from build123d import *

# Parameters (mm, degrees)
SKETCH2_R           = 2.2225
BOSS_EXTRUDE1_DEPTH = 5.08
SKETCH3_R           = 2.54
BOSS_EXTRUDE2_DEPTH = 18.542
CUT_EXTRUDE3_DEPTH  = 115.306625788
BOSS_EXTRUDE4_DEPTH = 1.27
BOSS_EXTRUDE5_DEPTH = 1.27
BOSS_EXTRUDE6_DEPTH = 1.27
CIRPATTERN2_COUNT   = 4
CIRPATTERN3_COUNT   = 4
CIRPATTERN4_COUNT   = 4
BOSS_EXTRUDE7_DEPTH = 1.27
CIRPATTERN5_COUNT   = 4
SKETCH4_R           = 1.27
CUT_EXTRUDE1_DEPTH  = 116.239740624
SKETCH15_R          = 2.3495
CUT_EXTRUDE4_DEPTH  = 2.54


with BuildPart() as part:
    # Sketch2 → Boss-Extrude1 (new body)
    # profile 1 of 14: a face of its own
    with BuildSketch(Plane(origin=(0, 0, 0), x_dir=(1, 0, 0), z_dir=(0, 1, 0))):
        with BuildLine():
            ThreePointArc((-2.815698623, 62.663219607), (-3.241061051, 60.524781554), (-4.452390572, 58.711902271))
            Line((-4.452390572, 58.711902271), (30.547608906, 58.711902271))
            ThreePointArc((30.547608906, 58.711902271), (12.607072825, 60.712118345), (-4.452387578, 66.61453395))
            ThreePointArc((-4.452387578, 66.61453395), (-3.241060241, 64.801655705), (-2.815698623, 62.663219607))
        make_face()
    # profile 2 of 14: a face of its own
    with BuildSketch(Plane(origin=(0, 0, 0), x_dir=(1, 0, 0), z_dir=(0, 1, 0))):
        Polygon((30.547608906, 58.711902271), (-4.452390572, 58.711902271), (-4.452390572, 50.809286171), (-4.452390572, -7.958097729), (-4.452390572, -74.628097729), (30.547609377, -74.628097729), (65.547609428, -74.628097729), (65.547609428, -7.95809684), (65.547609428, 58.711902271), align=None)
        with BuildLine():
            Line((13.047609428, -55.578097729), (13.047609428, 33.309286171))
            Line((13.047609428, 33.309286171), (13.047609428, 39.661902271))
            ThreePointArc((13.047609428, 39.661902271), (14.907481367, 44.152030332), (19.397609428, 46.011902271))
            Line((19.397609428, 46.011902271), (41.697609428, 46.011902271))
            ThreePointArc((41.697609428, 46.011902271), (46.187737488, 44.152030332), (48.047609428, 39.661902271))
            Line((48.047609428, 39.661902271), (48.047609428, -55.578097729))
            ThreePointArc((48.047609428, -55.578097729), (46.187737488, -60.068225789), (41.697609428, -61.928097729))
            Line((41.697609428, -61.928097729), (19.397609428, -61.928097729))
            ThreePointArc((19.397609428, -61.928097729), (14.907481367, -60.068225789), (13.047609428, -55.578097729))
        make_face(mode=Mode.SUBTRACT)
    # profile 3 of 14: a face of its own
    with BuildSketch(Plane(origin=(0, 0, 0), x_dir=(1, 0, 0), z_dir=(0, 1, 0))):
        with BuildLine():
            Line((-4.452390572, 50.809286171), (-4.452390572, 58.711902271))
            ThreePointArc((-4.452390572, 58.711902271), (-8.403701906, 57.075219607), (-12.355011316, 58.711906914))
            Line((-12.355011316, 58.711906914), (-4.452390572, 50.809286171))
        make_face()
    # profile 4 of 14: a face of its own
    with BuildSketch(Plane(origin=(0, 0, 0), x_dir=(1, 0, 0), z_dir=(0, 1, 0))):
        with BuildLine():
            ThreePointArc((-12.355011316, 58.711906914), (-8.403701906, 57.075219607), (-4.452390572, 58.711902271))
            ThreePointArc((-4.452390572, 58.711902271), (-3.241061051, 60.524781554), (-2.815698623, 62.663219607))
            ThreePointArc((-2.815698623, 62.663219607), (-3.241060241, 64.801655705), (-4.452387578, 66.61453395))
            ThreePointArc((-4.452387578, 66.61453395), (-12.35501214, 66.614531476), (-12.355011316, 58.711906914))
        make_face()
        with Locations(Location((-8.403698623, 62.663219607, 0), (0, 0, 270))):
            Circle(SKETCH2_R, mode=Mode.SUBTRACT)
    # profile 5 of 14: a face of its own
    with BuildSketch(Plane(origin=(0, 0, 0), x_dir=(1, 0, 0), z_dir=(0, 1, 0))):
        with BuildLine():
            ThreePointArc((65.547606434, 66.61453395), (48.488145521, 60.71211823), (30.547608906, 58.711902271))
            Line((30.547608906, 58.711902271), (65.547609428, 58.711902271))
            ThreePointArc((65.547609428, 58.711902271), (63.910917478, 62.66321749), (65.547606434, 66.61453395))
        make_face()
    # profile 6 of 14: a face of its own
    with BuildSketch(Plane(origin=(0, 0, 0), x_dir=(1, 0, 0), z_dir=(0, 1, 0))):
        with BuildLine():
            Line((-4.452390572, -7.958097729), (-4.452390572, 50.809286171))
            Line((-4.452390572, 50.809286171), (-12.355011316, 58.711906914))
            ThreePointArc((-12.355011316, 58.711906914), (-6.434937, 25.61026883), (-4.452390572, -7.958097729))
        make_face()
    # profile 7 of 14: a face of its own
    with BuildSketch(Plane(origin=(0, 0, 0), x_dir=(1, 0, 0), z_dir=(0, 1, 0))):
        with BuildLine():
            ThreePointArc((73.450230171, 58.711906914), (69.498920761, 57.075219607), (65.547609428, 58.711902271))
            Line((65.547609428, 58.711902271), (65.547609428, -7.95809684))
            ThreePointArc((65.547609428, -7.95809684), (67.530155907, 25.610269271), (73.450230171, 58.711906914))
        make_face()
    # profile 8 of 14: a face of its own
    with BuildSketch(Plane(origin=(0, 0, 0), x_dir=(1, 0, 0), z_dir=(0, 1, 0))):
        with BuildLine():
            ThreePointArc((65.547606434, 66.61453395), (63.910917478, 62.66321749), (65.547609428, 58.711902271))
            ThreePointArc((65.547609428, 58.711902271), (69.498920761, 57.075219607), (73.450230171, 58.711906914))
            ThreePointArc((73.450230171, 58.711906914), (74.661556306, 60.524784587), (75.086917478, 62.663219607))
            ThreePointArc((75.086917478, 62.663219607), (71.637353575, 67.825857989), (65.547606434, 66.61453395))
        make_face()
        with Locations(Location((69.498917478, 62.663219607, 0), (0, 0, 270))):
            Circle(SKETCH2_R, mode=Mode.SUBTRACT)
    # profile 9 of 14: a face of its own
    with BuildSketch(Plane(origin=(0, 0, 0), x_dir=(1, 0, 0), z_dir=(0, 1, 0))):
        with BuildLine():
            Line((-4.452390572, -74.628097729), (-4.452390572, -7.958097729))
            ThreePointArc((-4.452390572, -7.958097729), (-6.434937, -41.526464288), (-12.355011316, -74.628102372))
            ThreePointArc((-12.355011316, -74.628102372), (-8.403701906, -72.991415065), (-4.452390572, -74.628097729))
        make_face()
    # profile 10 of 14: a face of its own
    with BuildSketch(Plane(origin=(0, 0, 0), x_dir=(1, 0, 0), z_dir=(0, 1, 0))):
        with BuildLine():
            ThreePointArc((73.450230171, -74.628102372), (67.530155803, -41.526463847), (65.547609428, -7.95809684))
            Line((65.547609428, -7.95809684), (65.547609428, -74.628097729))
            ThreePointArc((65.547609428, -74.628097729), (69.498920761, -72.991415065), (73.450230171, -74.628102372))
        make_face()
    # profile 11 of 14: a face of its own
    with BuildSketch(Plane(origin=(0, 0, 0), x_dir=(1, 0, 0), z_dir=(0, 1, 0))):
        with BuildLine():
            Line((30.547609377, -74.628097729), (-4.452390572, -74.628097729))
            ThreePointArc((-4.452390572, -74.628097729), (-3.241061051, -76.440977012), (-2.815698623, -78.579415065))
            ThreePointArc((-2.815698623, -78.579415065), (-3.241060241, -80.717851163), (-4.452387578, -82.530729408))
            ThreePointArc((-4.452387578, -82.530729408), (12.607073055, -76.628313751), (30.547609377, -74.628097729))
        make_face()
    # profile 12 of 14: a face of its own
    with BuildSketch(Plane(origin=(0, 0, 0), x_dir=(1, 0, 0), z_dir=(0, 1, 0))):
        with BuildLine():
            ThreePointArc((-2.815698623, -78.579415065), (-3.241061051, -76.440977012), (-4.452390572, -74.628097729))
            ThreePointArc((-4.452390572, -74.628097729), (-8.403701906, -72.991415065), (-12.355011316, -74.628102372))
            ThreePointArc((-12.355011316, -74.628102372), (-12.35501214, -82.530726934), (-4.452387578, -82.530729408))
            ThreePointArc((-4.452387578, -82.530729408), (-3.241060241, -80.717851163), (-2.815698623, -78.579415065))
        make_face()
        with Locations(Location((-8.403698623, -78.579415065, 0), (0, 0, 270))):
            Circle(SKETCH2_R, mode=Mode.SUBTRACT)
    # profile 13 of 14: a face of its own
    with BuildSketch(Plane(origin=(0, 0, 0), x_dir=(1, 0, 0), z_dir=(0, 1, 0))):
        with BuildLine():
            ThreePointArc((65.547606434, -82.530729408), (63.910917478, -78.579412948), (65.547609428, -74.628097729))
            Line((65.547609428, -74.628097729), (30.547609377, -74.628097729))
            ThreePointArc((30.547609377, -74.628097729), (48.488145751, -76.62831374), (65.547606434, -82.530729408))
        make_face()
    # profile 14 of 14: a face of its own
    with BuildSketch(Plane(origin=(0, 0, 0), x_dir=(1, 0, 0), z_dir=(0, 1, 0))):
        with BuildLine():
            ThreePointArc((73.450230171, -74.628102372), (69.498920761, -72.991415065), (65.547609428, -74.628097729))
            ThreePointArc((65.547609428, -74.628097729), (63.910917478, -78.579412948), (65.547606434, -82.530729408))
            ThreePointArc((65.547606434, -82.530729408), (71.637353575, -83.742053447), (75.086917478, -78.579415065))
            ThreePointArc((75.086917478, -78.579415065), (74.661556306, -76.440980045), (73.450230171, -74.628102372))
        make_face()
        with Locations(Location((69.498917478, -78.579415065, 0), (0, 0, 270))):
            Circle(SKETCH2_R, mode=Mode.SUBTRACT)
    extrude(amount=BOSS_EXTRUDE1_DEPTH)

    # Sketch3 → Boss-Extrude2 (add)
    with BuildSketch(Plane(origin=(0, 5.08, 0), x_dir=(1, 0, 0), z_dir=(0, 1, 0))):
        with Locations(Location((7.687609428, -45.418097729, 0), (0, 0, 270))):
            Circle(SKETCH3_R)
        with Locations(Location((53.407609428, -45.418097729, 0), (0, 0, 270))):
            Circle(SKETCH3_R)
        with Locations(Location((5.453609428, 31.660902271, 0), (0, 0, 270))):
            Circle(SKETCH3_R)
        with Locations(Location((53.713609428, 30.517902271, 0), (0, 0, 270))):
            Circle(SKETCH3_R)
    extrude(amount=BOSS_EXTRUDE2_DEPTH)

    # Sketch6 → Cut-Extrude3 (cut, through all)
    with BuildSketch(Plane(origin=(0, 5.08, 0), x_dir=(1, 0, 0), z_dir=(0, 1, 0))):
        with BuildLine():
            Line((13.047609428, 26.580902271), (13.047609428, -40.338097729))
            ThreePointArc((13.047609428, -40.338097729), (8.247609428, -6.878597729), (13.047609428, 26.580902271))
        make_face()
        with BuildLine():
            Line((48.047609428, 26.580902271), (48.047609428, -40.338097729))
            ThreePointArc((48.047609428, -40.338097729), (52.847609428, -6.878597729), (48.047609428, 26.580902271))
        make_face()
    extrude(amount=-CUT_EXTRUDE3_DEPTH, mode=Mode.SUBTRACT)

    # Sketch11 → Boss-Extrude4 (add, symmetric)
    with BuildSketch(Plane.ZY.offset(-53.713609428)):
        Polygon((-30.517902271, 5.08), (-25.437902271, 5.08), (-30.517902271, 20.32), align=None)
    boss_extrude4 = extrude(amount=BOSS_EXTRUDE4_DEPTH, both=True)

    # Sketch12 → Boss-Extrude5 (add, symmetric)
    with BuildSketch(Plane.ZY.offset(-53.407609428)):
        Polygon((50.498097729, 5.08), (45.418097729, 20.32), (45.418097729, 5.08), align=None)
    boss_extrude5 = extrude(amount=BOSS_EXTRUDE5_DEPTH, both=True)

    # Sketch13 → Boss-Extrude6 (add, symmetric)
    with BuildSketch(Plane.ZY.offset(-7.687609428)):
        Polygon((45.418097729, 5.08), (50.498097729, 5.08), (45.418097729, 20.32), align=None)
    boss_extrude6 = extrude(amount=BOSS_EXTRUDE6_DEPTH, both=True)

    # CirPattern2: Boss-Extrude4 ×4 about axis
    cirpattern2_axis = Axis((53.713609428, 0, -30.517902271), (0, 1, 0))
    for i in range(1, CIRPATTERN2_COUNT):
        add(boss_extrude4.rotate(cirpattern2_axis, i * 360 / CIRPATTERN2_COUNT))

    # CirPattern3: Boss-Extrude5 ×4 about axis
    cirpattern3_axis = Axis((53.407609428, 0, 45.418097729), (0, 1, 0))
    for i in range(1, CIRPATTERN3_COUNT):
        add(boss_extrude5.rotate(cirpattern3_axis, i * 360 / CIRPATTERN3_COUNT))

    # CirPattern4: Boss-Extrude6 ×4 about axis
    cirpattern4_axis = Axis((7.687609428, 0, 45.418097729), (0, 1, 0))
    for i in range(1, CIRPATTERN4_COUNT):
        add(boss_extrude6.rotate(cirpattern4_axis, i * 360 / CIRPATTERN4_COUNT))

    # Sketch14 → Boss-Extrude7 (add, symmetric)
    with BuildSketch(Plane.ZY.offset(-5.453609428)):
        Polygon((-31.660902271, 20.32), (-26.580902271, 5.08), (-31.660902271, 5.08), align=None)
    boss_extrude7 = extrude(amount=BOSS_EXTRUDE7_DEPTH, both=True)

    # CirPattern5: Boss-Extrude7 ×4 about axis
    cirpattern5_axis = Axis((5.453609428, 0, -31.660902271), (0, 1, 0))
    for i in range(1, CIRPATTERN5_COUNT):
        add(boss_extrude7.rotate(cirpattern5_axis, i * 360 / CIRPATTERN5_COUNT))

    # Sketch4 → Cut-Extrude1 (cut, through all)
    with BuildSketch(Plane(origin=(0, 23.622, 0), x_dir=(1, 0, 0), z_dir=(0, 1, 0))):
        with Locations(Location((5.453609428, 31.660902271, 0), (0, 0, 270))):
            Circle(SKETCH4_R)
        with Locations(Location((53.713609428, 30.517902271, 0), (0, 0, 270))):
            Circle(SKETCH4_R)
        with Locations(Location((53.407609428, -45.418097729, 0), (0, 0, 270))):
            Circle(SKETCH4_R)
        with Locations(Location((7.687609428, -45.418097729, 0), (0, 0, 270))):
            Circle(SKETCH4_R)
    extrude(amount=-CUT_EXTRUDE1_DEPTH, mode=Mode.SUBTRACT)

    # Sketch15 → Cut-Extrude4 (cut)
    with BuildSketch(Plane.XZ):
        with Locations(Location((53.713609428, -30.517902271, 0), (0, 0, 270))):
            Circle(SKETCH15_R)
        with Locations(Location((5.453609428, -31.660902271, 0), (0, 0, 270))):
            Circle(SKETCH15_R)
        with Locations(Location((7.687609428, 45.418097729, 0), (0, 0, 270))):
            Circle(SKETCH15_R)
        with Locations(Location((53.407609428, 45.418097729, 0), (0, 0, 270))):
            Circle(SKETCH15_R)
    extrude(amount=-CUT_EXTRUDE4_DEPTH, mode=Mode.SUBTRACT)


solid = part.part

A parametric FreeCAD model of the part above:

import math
import FreeCAD as App
import Part
import Sketcher
from FreeCAD import Vector
Q = App.Units.Quantity


def add_polygon(sketch, points):
    """Adds a closed chain of lines whose ends are joined by coincident constraints."""
    first, n = sketch.GeometryCount, len(points)
    for a, b in zip(points, points[1:] + points[:1]):
        sketch.addGeometry(Part.LineSegment(App.Vector(*a, 0), App.Vector(*b, 0)), False)
    for i in range(n):
        sketch.addConstraint(Sketcher.Constraint("Coincident", first + i, 2, first + (i + 1) % n, 1))

doc = App.newDocument("Part")
body = doc.addObject("PartDesign::Body", "Body")

# Sketch on XZ plane
sketch1 = doc.addObject("Sketcher::SketchObject", "Sketch")
body.addObject(sketch1)
sketch1.AttachmentSupport = (doc.XZ_Plane, [""])
sketch1.MapMode = "FlatFace"
sketch1.addGeometry(Part.ArcOfCircle(Part.Circle(Vector(30.5, -140.2, 0), Vector(0, 0, 1), 81.5), math.radians(90), math.radians(115)), False)
sketch1.addGeometry(Part.ArcOfCircle(Part.Circle(Vector(-8.4, -62.7, 0), Vector(0, 0, 1), 5.6), math.radians(135), math.radians(315)), False)
sketch1.addGeometry(Part.ArcOfCircle(Part.Circle(Vector(-289.6, 8, 0), Vector(0, 0, 1), 285.2), math.radians(-13.52), math.radians(0)), False)
sketch1.addGeometry(Part.ArcOfCircle(Part.Circle(Vector(-289.6, 8, 0), Vector(0, 0, 1), 285.2), math.radians(0), math.radians(13.52)), False)
sketch1.addGeometry(Part.ArcOfCircle(Part.Circle(Vector(-8.4, 78.6, 0), Vector(0, 0, 1), 5.6), math.radians(45), math.radians(225)), False)
sketch1.addGeometry(Part.ArcOfCircle(Part.Circle(Vector(30.5, 156.1, 0), Vector(0, 0, 1), 81.5), math.radians(-115), math.radians(-90)), False)
sketch1.addGeometry(Part.ArcOfCircle(Part.Circle(Vector(30.5, 156.1, 0), Vector(0, 0, 1), 81.5), math.radians(-90), math.radians(-65)), False)
sketch1.addGeometry(Part.ArcOfCircle(Part.Circle(Vector(69.5, 78.6, 0), Vector(0, 0, 1), 5.6), math.radians(0), math.radians(135)), False)
sketch1.addGeometry(Part.ArcOfCircle(Part.Circle(Vector(69.5, 78.6, 0), Vector(0, 0, 1), 5.6), math.radians(-45), math.radians(0)), False)
sketch1.addGeometry(Part.ArcOfCircle(Part.Circle(Vector(350.7, 8, 0), Vector(0, 0, 1), 285.2), math.radians(166.48), math.radians(180)), False)
sketch1.addGeometry(Part.ArcOfCircle(Part.Circle(Vector(350.7, 8, 0), Vector(0, 0, 1), 285.2), math.radians(-180), math.radians(-166.48)), False)
sketch1.addGeometry(Part.ArcOfCircle(Part.Circle(Vector(69.5, -62.7, 0), Vector(0, 0, 1), 5.6), math.radians(0), math.radians(45)), False)
sketch1.addGeometry(Part.ArcOfCircle(Part.Circle(Vector(69.5, -62.7, 0), Vector(0, 0, 1), 5.6), math.radians(-135), math.radians(0)), False)
sketch1.addGeometry(Part.ArcOfCircle(Part.Circle(Vector(30.5, -140.2, 0), Vector(0, 0, 1), 81.5), math.radians(65), math.radians(90)), False)
sketch1.addGeometry(Part.Circle(Vector(-8.4, -62.7, 0), Vector(0, 0, 1), 2.2), False)
sketch1.addGeometry(Part.LineSegment(Vector(13, 55.6, 0), Vector(13, -39.7, 0)), False)
sketch1.addGeometry(Part.ArcOfCircle(Part.Circle(Vector(19.4, -39.7, 0), Vector(0, 0, 1), 6.3), math.radians(180), math.radians(270)), False)
sketch1.addGeometry(Part.LineSegment(Vector(19.4, -46, 0), Vector(41.7, -46, 0)), False)
sketch1.addGeometry(Part.ArcOfCircle(Part.Circle(Vector(41.7, -39.7, 0), Vector(0, 0, 1), 6.3), math.radians(-90), math.radians(0)), False)
sketch1.addGeometry(Part.LineSegment(Vector(48, -39.7, 0), Vector(48, 55.6, 0)), False)
sketch1.addGeometry(Part.ArcOfCircle(Part.Circle(Vector(41.7, 55.6, 0), Vector(0, 0, 1), 6.4), math.radians(0), math.radians(90)), False)
sketch1.addGeometry(Part.LineSegment(Vector(41.7, 61.9, 0), Vector(19.4, 61.9, 0)), False)
sketch1.addGeometry(Part.ArcOfCircle(Part.Circle(Vector(19.4, 55.6, 0), Vector(0, 0, 1), 6.3), math.radians(90), math.radians(180)), False)
sketch1.addGeometry(Part.Circle(Vector(-8.4, 78.6, 0), Vector(0, 0, 1), 2.2), False)
sketch1.addGeometry(Part.Circle(Vector(69.5, -62.7, 0), Vector(0, 0, 1), 2.2), False)
sketch1.addGeometry(Part.Circle(Vector(69.5, 78.6, 0), Vector(0, 0, 1), 2.2), False)
sketch1.addConstraint(Sketcher.Constraint("Coincident", 0, 2, 1, 2))
sketch1.addConstraint(Sketcher.Constraint("Coincident", 1, 1, 2, 1))
sketch1.addConstraint(Sketcher.Constraint("Tangent", 2, 2, 3, 1))
sketch1.addConstraint(Sketcher.Constraint("Coincident", 3, 2, 4, 2))
sketch1.addConstraint(Sketcher.Constraint("Coincident", 4, 1, 5, 1))
sketch1.addConstraint(Sketcher.Constraint("Tangent", 5, 2, 6, 1))
sketch1.addConstraint(Sketcher.Constraint("Coincident", 6, 2, 7, 2))
sketch1.addConstraint(Sketcher.Constraint("Tangent", 7, 1, 8, 2))
sketch1.addConstraint(Sketcher.Constraint("Coincident", 8, 1, 9, 1))
sketch1.addConstraint(Sketcher.Constraint("Tangent", 9, 2, 10, 1))
sketch1.addConstraint(Sketcher.Constraint("Coincident", 10, 2, 11, 2))
sketch1.addConstraint(Sketcher.Constraint("Tangent", 11, 1, 12, 2))
sketch1.addConstraint(Sketcher.Constraint("Coincident", 12, 1, 13, 1))
sketch1.addConstraint(Sketcher.Constraint("Tangent", 13, 2, 0, 1))
sketch1.addConstraint(Sketcher.Constraint("Tangent", 15, 2, 16, 1))
sketch1.addConstraint(Sketcher.Constraint("Tangent", 16, 2, 17, 1))
sketch1.addConstraint(Sketcher.Constraint("Tangent", 17, 2, 18, 1))
sketch1.addConstraint(Sketcher.Constraint("Tangent", 18, 2, 19, 1))
sketch1.addConstraint(Sketcher.Constraint("Tangent", 19, 2, 20, 1))
sketch1.addConstraint(Sketcher.Constraint("Tangent", 20, 2, 21, 1))
sketch1.addConstraint(Sketcher.Constraint("Tangent", 21, 2, 22, 1))
sketch1.addConstraint(Sketcher.Constraint("Tangent", 22, 2, 15, 1))
sketch1.addConstraint(Sketcher.Constraint("Vertical", 15))
sketch1.addConstraint(Sketcher.Constraint("Horizontal", 17))
sketch1.addConstraint(Sketcher.Constraint("Vertical", 19))
sketch1.addConstraint(Sketcher.Constraint("Horizontal", 21))
sketch1.addConstraint(Sketcher.Constraint("Coincident", 14, 3, 1, 3))
sketch1.addConstraint(Sketcher.Constraint("Coincident", 23, 3, 4, 3))
sketch1.addConstraint(Sketcher.Constraint("Coincident", 24, 3, 11, 3))
sketch1.addConstraint(Sketcher.Constraint("Coincident", 25, 3, 7, 3))
sketch1.addConstraint(Sketcher.Constraint("Equal", 2, 3))
sketch1.addConstraint(Sketcher.Constraint("Equal", 1, 4))
sketch1.addConstraint(Sketcher.Constraint("Equal", 0, 5))
sketch1.addConstraint(Sketcher.Constraint("Equal", 5, 6))
sketch1.addConstraint(Sketcher.Constraint("Equal", 4, 7))
sketch1.addConstraint(Sketcher.Constraint("Equal", 7, 8))
sketch1.addConstraint(Sketcher.Constraint("Equal", 3, 9))
sketch1.addConstraint(Sketcher.Constraint("Equal", 9, 10))
sketch1.addConstraint(Sketcher.Constraint("Equal", 8, 11))
sketch1.addConstraint(Sketcher.Constraint("Equal", 11, 12))
sketch1.addConstraint(Sketcher.Constraint("Equal", 6, 13))
sketch1.addConstraint(Sketcher.Constraint("Equal", 16, 18))
sketch1.addConstraint(Sketcher.Constraint("Equal", 18, 20))
sketch1.addConstraint(Sketcher.Constraint("Equal", 20, 22))
sketch1.addConstraint(Sketcher.Constraint("Equal", 14, 23))
sketch1.addConstraint(Sketcher.Constraint("Equal", 23, 24))
sketch1.addConstraint(Sketcher.Constraint("Equal", 24, 25))
sketch1.addConstraint(Sketcher.Constraint("Horizontal", 4, 3, 7, 3))
sketch1.addConstraint(Sketcher.Constraint("Horizontal", 3, 3, 9, 3))
sketch1.addConstraint(Sketcher.Constraint("Horizontal", 1, 3, 11, 3))
sketch1.addConstraint(Sketcher.Constraint("Horizontal", 10, 3, 2, 2))
sketch1.addConstraint(Sketcher.Constraint("Horizontal", 4, 1, 6, 2))
sketch1.addConstraint(Sketcher.Constraint("Horizontal", 25, 3, 7, 1))
sketch1.addConstraint(Sketcher.Constraint("Horizontal", 3, 2, 8, 1))
sketch1.addConstraint(Sketcher.Constraint("Horizontal", 2, 2, 9, 2))
sketch1.addConstraint(Sketcher.Constraint("Horizontal", 1, 1, 10, 2))
sketch1.addConstraint(Sketcher.Constraint("Horizontal", 24, 3, 11, 1))
sketch1.addConstraint(Sketcher.Constraint("Horizontal", 0, 2, 12, 1))
sketch1.addConstraint(Sketcher.Constraint("Vertical", 1, 3, 4, 3))
sketch1.addConstraint(Sketcher.Constraint("Vertical", 1, 1, 3, 2))
sketch1.addConstraint(Sketcher.Constraint("Vertical", 0, 2, 4, 1))
sketch1.addConstraint(Sketcher.Constraint("Vertical", 13, 3, 5, 2))
sketch1.addConstraint(Sketcher.Constraint("Vertical", 5, 2, 13, 2))
sketch1.addConstraint(Sketcher.Constraint("Radius", 1, Q("0.22 in")))
sketch1.addConstraint(Sketcher.Constraint("Radius", 16, Q("0.25 in")))
sketch1.addConstraint(Sketcher.Constraint("Diameter", 14, Q("0.175 in")))
sketch1.addConstraint(Sketcher.Constraint("DistanceY", 13, 2, 16, 2, Q("0.5 in")))
sketch1.addConstraint(Sketcher.Constraint("DistanceY", 20, 2, 5, 2, Q("0.5 in")))
sketch1.addConstraint(Sketcher.Constraint("DistanceY", 1, 1, 16, 3, Q("0.7500002 in")))
sketch1.addConstraint(Sketcher.Constraint("Radius", 0, Q("81.457129 mm")))
sketch1.addConstraint(Sketcher.Constraint("DistanceX", 17, 1, 17, 2, Q("22.3 mm")))
sketch1.addConstraint(Sketcher.Constraint("DistanceY", 15, 2, 15, 1, Q("95.24 mm")))
sketch1.addConstraint(Sketcher.Constraint("Radius", 2, Q("285.180137 mm")))
sketch1.addConstraint(Sketcher.Constraint("DistanceX", 1, 3, -1, 1, Q("8.403699 mm")))
sketch1.addConstraint(Sketcher.Constraint("DistanceX", 16, 3, 0, 3, Q("11.15 mm")))
sketch1.addConstraint(Sketcher.Constraint("DistanceX", 2, 2, 22, 3, Q("23.85 mm")))
sketch1.addConstraint(Sketcher.Constraint("DistanceX", -1, 1, 0, 3, Q("30.547609 mm")))
sketch1.addConstraint(Sketcher.Constraint("DistanceY", 0, 3, -1, 1, Q("140.169031 mm")))
pad1 = doc.addObject("PartDesign::Pad", "Pad")
body.addObject(pad1)
pad1.Profile = sketch1
pad1.Length = Q("0.2 in")
pad1.Reversed = True

# Sketch on XZ plane
sketch2 = doc.addObject("Sketcher::SketchObject", "Sketch001")
body.addObject(sketch2)
sketch2.AttachmentSupport = (doc.XZ_Plane, [""])
sketch2.MapMode = "FlatFace"
sketch2.AttachmentOffset = App.Placement(Vector(0, 0, -0.2 * 25.4), App.Rotation())
sketch2.addGeometry(Part.Circle(Vector(7.7, 45.4, 0), Vector(0, 0, 1), 2.5), False)
sketch2.addGeometry(Part.Circle(Vector(53.4, 45.4, 0), Vector(0, 0, 1), 2.5), False)
sketch2.addGeometry(Part.Circle(Vector(5.5, -31.7, 0), Vector(0, 0, 1), 2.5), False)
sketch2.addGeometry(Part.Circle(Vector(53.7, -30.5, 0), Vector(0, 0, 1), 2.5), False)
sketch2.addConstraint(Sketcher.Constraint("Equal", 0, 1))
sketch2.addConstraint(Sketcher.Constraint("Equal", 1, 2))
sketch2.addConstraint(Sketcher.Constraint("Equal", 2, 3))
sketch2.addConstraint(Sketcher.Constraint("Horizontal", 0, 3, 1, 3))
sketch2.addConstraint(Sketcher.Constraint("Diameter", 0, Q("0.2 in")))
sketch2.addConstraint(Sketcher.Constraint("DistanceX", 0, 3, 1, 3, Q("1.8 in")))
sketch2.addConstraint(Sketcher.Constraint("DistanceX", 2, 3, 3, 3, Q("1.9 in")))
sketch2.addConstraint(Sketcher.Constraint("DistanceY", 2, 3, 3, 3, Q("0.045 in")))
sketch2.addConstraint(Sketcher.Constraint("DistanceX", 2, 3, 0, 3, Q("2.234 mm")))
sketch2.addConstraint(Sketcher.Constraint("DistanceY", 2, 3, 0, 3, Q("77.079 mm")))
sketch2.addConstraint(Sketcher.Constraint("DistanceX", -1, 1, 0, 3, Q("7.687609 mm")))
sketch2.addConstraint(Sketcher.Constraint("DistanceY", -1, 1, 0, 3, Q("45.418098 mm")))
pad2 = doc.addObject("PartDesign::Pad", "Pad001")
body.addObject(pad2)
pad2.Profile = sketch2
pad2.Length = Q("0.73 in")
pad2.Reversed = True

# Sketch on XZ plane
sketch3 = doc.addObject("Sketcher::SketchObject", "Sketch002")
body.addObject(sketch3)
sketch3.AttachmentSupport = (doc.XZ_Plane, [""])
sketch3.MapMode = "FlatFace"
sketch3.AttachmentOffset = App.Placement(Vector(0, 0, -0.2 * 25.4), App.Rotation())
sketch3.addGeometry(Part.LineSegment(Vector(13, 40, 0), Vector(13, -27, 0)), False)
sketch3.addGeometry(Part.ArcOfCircle(Part.Circle(Vector(127, 7, 0), Vector(0, 0, 1), 119), math.radians(164), math.radians(196)), False)
sketch3.addGeometry(Part.LineSegment(Vector(48, -27, 0), Vector(48, 40, 0)), False)
sketch3.addGeometry(Part.ArcOfCircle(Part.Circle(Vector(-66, 7, 0), Vector(0, 0, 1), 119), math.radians(-16), math.radians(16)), False)
sketch3.addConstraint(Sketcher.Constraint("Coincident", 0, 1, 1, 1))
sketch3.addConstraint(Sketcher.Constraint("Coincident", 1, 2, 0, 2))
sketch3.addConstraint(Sketcher.Constraint("Coincident", 2, 1, 3, 1))
sketch3.addConstraint(Sketcher.Constraint("Coincident", 3, 2, 2, 2))
sketch3.addConstraint(Sketcher.Constraint("Vertical", 0))
sketch3.addConstraint(Sketcher.Constraint("Vertical", 2))
sketch3.addConstraint(Sketcher.Constraint("Equal", 1, 3))
sketch3.addConstraint(Sketcher.Constraint("Horizontal", 1, 3, 3, 3))
sketch3.addConstraint(Sketcher.Constraint("Horizontal", 1, 2, 2, 1))
sketch3.addConstraint(Sketcher.Constraint("DistanceY", 0, 2, 0, 1, Q("66.919 mm")))
sketch3.addConstraint(Sketcher.Constraint("Radius", 1, Q("119.018556 mm")))
sketch3.addConstraint(Sketcher.Constraint("DistanceX", 1, 2, 2, 1, Q("35 mm")))
sketch3.addConstraint(Sketcher.Constraint("DistanceX", -1, 1, 0, 1, Q("13.047609 mm")))
sketch3.addConstraint(Sketcher.Constraint("DistanceY", -1, 1, 1, 3, Q("6.878598 mm")))
pocket1 = doc.addObject("PartDesign::Pocket", "Pocket")
body.addObject(pocket1)
pocket1.Profile = sketch3
pocket1.Type = "ThroughAll"
pocket1.Reversed = True

# Sketch on YZ plane
sketch4 = doc.addObject("Sketcher::SketchObject", "Sketch003")
body.addObject(sketch4)
sketch4.AttachmentSupport = (doc.YZ_Plane, [""])
sketch4.MapMode = "FlatFace"
sketch4.AttachmentOffset = App.Placement(Vector(0, 0, 53.713609), App.Rotation())
add_polygon(sketch4, [(5, -31), (5, -25), (20, -31)])  # lines 0-2
sketch4.addConstraint(Sketcher.Constraint("Vertical", 0))
sketch4.addConstraint(Sketcher.Constraint("Horizontal", 2))
sketch4.addConstraint(Sketcher.Constraint("DistanceX", 2, 2, 2, 1, Q("0.6 in")))
sketch4.addConstraint(Sketcher.Constraint("DistanceY", 0, 1, 0, 2, Q("0.2 in")))
sketch4.addConstraint(Sketcher.Constraint("DistanceX", -1, 1, 0, 2, Q("0.2 in")))
sketch4.addConstraint(Sketcher.Constraint("DistanceY", 0, 2, -1, 1, Q("25.437902 mm")))
pad3 = doc.addObject("PartDesign::Pad", "Pad002")
body.addObject(pad3)
pad3.Profile = sketch4
pad3.Length = Q("0.1 in")
pad3.Midplane = True

# Sketch on YZ plane
sketch5 = doc.addObject("Sketcher::SketchObject", "Sketch004")
body.addObject(sketch5)
sketch5.AttachmentSupport = (doc.YZ_Plane, [""])
sketch5.MapMode = "FlatFace"
sketch5.AttachmentOffset = App.Placement(Vector(0, 0, 53.407609), App.Rotation())
add_polygon(sketch5, [(5, 50), (20, 45), (5, 45)])  # lines 0-2
sketch5.addConstraint(Sketcher.Constraint("Horizontal", 1))
sketch5.addConstraint(Sketcher.Constraint("Vertical", 2))
sketch5.addConstraint(Sketcher.Constraint("DistanceX", 1, 2, 1, 1, Q("0.6 in")))
sketch5.addConstraint(Sketcher.Constraint("DistanceY", 2, 1, 2, 2, Q("0.2 in")))
sketch5.addConstraint(Sketcher.Constraint("DistanceX", -1, 1, 0, 2, Q("0.8 in")))
sketch5.addConstraint(Sketcher.Constraint("DistanceY", -1, 1, 0, 2, Q("45.418098 mm")))
pad4 = doc.addObject("PartDesign::Pad", "Pad003")
body.addObject(pad4)
pad4.Profile = sketch5
pad4.Length = Q("0.1 in")
pad4.Midplane = True

# Sketch on YZ plane
sketch6 = doc.addObject("Sketcher::SketchObject", "Sketch005")
body.addObject(sketch6)
sketch6.AttachmentSupport = (doc.YZ_Plane, [""])
sketch6.MapMode = "FlatFace"
sketch6.AttachmentOffset = App.Placement(Vector(0, 0, 7.687609), App.Rotation())
add_polygon(sketch6, [(5, 45), (5, 50), (20, 45)])  # lines 0-2
sketch6.addConstraint(Sketcher.Constraint("Vertical", 0))
sketch6.addConstraint(Sketcher.Constraint("Horizontal", 2))
sketch6.addConstraint(Sketcher.Constraint("DistanceX", 2, 2, 2, 1, Q("0.6 in")))
sketch6.addConstraint(Sketcher.Constraint("DistanceY", 0, 1, 0, 2, Q("0.2 in")))
sketch6.addConstraint(Sketcher.Constraint("DistanceX", -1, 1, 0, 2, Q("0.2 in")))
sketch6.addConstraint(Sketcher.Constraint("DistanceY", -1, 1, 0, 2, Q("50.498098 mm")))
pad5 = doc.addObject("PartDesign::Pad", "Pad004")
body.addObject(pad5)
pad5.Profile = sketch6
pad5.Length = Q("0.1 in")
pad5.Midplane = True
doc.recompute()

datumline = doc.addObject("PartDesign::Line", "DatumLine")
body.addObject(datumline)
datumline.Placement = App.Placement(Vector(53.713609, 0, -30.517902), App.Rotation(Vector(0, 0, 1), Vector(0, 1, 0)))
polarpattern = doc.addObject("PartDesign::PolarPattern", "PolarPattern")
body.addObject(polarpattern)
polarpattern.Originals = [pad3]
polarpattern.Axis = (datumline, [""])
polarpattern.Angle = 360
polarpattern.Occurrences = 4
body.Tip = polarpattern
doc.recompute()

datumline2 = doc.addObject("PartDesign::Line", "DatumLine001")
body.addObject(datumline2)
datumline2.Placement = App.Placement(Vector(53.407609, 0, 45.418098), App.Rotation(Vector(0, 0, 1), Vector(0, 1, 0)))
polarpattern2 = doc.addObject("PartDesign::PolarPattern", "PolarPattern001")
body.addObject(polarpattern2)
polarpattern2.Originals = [pad4]
polarpattern2.Axis = (datumline2, [""])
polarpattern2.Angle = 360
polarpattern2.Occurrences = 4
body.Tip = polarpattern2
doc.recompute()

datumline3 = doc.addObject("PartDesign::Line", "DatumLine002")
body.addObject(datumline3)
datumline3.Placement = App.Placement(Vector(7.687609, 0, 45.418098), App.Rotation(Vector(0, 0, 1), Vector(0, 1, 0)))
polarpattern3 = doc.addObject("PartDesign::PolarPattern", "PolarPattern002")
body.addObject(polarpattern3)
polarpattern3.Originals = [pad5]
polarpattern3.Axis = (datumline3, [""])
polarpattern3.Angle = 360
polarpattern3.Occurrences = 4
body.Tip = polarpattern3

# Sketch on YZ plane
sketch7 = doc.addObject("Sketcher::SketchObject", "Sketch006")
body.addObject(sketch7)
sketch7.AttachmentSupport = (doc.YZ_Plane, [""])
sketch7.MapMode = "FlatFace"
sketch7.AttachmentOffset = App.Placement(Vector(0, 0, 5.453609), App.Rotation())
add_polygon(sketch7, [(5, -27), (20, -32), (5, -32)])  # lines 0-2
sketch7.addConstraint(Sketcher.Constraint("Horizontal", 1))
sketch7.addConstraint(Sketcher.Constraint("Vertical", 2))
sketch7.addConstraint(Sketcher.Constraint("DistanceX", 1, 2, 1, 1, Q("0.6 in")))
sketch7.addConstraint(Sketcher.Constraint("DistanceY", 2, 1, 2, 2, Q("0.2 in")))
sketch7.addConstraint(Sketcher.Constraint("DistanceX", -1, 1, 0, 2, Q("0.8 in")))
sketch7.addConstraint(Sketcher.Constraint("DistanceY", 0, 2, -1, 1, Q("31.660902 mm")))
pad6 = doc.addObject("PartDesign::Pad", "Pad005")
body.addObject(pad6)
pad6.Profile = sketch7
pad6.Length = Q("0.1 in")
pad6.Midplane = True
doc.recompute()

datumline4 = doc.addObject("PartDesign::Line", "DatumLine003")
body.addObject(datumline4)
datumline4.Placement = App.Placement(Vector(5.453609, 0, -31.660902), App.Rotation(Vector(0, 0, 1), Vector(0, 1, 0)))
polarpattern4 = doc.addObject("PartDesign::PolarPattern", "PolarPattern003")
body.addObject(polarpattern4)
polarpattern4.Originals = [pad6]
polarpattern4.Axis = (datumline4, [""])
polarpattern4.Angle = 360
polarpattern4.Occurrences = 4
body.Tip = polarpattern4

# Sketch on XZ plane
sketch8 = doc.addObject("Sketcher::SketchObject", "Sketch007")
body.addObject(sketch8)
sketch8.AttachmentSupport = (doc.XZ_Plane, [""])
sketch8.MapMode = "FlatFace"
sketch8.AttachmentOffset = App.Placement(Vector(0, 0, -0.93 * 25.4), App.Rotation())
sketch8.addGeometry(Part.Circle(Vector(5.5, -31.7, 0), Vector(0, 0, 1), 1.3), False)
sketch8.addGeometry(Part.Circle(Vector(53.7, -30.5, 0), Vector(0, 0, 1), 1.3), False)
sketch8.addGeometry(Part.Circle(Vector(53.4, 45.4, 0), Vector(0, 0, 1), 1.3), False)
sketch8.addGeometry(Part.Circle(Vector(7.7, 45.4, 0), Vector(0, 0, 1), 1.3), False)
sketch8.addConstraint(Sketcher.Constraint("Equal", 0, 1))
sketch8.addConstraint(Sketcher.Constraint("Equal", 1, 2))
sketch8.addConstraint(Sketcher.Constraint("Equal", 2, 3))
sketch8.addConstraint(Sketcher.Constraint("Horizontal", 2, 3, 3, 3))
sketch8.addConstraint(Sketcher.Constraint("Diameter", 0, Q("0.1 in")))
sketch8.addConstraint(Sketcher.Constraint("DistanceX", 0, 3, 1, 3, Q("1.9 in")))
sketch8.addConstraint(Sketcher.Constraint("DistanceX", 3, 3, 2, 3, Q("1.8 in")))
sketch8.addConstraint(Sketcher.Constraint("DistanceY", 0, 3, 1, 3, Q("0.045 in")))
sketch8.addConstraint(Sketcher.Constraint("DistanceX", 2, 3, 1, 3, Q("0.306 mm")))
sketch8.addConstraint(Sketcher.Constraint("DistanceY", 1, 3, 2, 3, Q("75.936 mm")))
sketch8.addConstraint(Sketcher.Constraint("DistanceX", -1, 1, 0, 3, Q("5.453609 mm")))
sketch8.addConstraint(Sketcher.Constraint("DistanceY", 0, 3, -1, 1, Q("31.660902 mm")))
pocket2 = doc.addObject("PartDesign::Pocket", "Pocket001")
body.addObject(pocket2)
pocket2.Profile = sketch8
pocket2.Type = "ThroughAll"
pocket2.Reversed = True

# Sketch on XZ plane
sketch9 = doc.addObject("Sketcher::SketchObject", "Sketch008")
body.addObject(sketch9)
sketch9.AttachmentSupport = (doc.XZ_Plane, [""])
sketch9.MapMode = "FlatFace"
sketch9.addGeometry(Part.Circle(Vector(53.7, -30.5, 0), Vector(0, 0, 1), 2.3), False)
sketch9.addGeometry(Part.Circle(Vector(5.5, -31.7, 0), Vector(0, 0, 1), 2.3), False)
sketch9.addGeometry(Part.Circle(Vector(7.7, 45.4, 0), Vector(0, 0, 1), 2.3), False)
sketch9.addGeometry(Part.Circle(Vector(53.4, 45.4, 0), Vector(0, 0, 1), 2.3), False)
sketch9.addConstraint(Sketcher.Constraint("Equal", 0, 1))
sketch9.addConstraint(Sketcher.Constraint("Equal", 1, 2))
sketch9.addConstraint(Sketcher.Constraint("Equal", 2, 3))
sketch9.addConstraint(Sketcher.Constraint("Horizontal", 2, 3, 3, 3))
sketch9.addConstraint(Sketcher.Constraint("Diameter", 0, Q("0.185 in")))
sketch9.addConstraint(Sketcher.Constraint("DistanceX", 1, 3, 0, 3, Q("1.9 in")))
sketch9.addConstraint(Sketcher.Constraint("DistanceX", 2, 3, 3, 3, Q("1.8 in")))
sketch9.addConstraint(Sketcher.Constraint("DistanceY", 1, 3, 0, 3, Q("0.045 in")))
sketch9.addConstraint(Sketcher.Constraint("DistanceX", 1, 3, 2, 3, Q("2.234 mm")))
sketch9.addConstraint(Sketcher.Constraint("DistanceY", 1, 3, 2, 3, Q("77.079 mm")))
sketch9.addConstraint(Sketcher.Constraint("DistanceX", -1, 1, 0, 3, Q("53.713609 mm")))
sketch9.addConstraint(Sketcher.Constraint("DistanceY", 0, 3, -1, 1, Q("30.517902 mm")))
pocket3 = doc.addObject("PartDesign::Pocket", "Pocket002")
body.addObject(pocket3)
pocket3.Profile = sketch9
pocket3.Length = Q("0.1 in")

doc.recompute()
